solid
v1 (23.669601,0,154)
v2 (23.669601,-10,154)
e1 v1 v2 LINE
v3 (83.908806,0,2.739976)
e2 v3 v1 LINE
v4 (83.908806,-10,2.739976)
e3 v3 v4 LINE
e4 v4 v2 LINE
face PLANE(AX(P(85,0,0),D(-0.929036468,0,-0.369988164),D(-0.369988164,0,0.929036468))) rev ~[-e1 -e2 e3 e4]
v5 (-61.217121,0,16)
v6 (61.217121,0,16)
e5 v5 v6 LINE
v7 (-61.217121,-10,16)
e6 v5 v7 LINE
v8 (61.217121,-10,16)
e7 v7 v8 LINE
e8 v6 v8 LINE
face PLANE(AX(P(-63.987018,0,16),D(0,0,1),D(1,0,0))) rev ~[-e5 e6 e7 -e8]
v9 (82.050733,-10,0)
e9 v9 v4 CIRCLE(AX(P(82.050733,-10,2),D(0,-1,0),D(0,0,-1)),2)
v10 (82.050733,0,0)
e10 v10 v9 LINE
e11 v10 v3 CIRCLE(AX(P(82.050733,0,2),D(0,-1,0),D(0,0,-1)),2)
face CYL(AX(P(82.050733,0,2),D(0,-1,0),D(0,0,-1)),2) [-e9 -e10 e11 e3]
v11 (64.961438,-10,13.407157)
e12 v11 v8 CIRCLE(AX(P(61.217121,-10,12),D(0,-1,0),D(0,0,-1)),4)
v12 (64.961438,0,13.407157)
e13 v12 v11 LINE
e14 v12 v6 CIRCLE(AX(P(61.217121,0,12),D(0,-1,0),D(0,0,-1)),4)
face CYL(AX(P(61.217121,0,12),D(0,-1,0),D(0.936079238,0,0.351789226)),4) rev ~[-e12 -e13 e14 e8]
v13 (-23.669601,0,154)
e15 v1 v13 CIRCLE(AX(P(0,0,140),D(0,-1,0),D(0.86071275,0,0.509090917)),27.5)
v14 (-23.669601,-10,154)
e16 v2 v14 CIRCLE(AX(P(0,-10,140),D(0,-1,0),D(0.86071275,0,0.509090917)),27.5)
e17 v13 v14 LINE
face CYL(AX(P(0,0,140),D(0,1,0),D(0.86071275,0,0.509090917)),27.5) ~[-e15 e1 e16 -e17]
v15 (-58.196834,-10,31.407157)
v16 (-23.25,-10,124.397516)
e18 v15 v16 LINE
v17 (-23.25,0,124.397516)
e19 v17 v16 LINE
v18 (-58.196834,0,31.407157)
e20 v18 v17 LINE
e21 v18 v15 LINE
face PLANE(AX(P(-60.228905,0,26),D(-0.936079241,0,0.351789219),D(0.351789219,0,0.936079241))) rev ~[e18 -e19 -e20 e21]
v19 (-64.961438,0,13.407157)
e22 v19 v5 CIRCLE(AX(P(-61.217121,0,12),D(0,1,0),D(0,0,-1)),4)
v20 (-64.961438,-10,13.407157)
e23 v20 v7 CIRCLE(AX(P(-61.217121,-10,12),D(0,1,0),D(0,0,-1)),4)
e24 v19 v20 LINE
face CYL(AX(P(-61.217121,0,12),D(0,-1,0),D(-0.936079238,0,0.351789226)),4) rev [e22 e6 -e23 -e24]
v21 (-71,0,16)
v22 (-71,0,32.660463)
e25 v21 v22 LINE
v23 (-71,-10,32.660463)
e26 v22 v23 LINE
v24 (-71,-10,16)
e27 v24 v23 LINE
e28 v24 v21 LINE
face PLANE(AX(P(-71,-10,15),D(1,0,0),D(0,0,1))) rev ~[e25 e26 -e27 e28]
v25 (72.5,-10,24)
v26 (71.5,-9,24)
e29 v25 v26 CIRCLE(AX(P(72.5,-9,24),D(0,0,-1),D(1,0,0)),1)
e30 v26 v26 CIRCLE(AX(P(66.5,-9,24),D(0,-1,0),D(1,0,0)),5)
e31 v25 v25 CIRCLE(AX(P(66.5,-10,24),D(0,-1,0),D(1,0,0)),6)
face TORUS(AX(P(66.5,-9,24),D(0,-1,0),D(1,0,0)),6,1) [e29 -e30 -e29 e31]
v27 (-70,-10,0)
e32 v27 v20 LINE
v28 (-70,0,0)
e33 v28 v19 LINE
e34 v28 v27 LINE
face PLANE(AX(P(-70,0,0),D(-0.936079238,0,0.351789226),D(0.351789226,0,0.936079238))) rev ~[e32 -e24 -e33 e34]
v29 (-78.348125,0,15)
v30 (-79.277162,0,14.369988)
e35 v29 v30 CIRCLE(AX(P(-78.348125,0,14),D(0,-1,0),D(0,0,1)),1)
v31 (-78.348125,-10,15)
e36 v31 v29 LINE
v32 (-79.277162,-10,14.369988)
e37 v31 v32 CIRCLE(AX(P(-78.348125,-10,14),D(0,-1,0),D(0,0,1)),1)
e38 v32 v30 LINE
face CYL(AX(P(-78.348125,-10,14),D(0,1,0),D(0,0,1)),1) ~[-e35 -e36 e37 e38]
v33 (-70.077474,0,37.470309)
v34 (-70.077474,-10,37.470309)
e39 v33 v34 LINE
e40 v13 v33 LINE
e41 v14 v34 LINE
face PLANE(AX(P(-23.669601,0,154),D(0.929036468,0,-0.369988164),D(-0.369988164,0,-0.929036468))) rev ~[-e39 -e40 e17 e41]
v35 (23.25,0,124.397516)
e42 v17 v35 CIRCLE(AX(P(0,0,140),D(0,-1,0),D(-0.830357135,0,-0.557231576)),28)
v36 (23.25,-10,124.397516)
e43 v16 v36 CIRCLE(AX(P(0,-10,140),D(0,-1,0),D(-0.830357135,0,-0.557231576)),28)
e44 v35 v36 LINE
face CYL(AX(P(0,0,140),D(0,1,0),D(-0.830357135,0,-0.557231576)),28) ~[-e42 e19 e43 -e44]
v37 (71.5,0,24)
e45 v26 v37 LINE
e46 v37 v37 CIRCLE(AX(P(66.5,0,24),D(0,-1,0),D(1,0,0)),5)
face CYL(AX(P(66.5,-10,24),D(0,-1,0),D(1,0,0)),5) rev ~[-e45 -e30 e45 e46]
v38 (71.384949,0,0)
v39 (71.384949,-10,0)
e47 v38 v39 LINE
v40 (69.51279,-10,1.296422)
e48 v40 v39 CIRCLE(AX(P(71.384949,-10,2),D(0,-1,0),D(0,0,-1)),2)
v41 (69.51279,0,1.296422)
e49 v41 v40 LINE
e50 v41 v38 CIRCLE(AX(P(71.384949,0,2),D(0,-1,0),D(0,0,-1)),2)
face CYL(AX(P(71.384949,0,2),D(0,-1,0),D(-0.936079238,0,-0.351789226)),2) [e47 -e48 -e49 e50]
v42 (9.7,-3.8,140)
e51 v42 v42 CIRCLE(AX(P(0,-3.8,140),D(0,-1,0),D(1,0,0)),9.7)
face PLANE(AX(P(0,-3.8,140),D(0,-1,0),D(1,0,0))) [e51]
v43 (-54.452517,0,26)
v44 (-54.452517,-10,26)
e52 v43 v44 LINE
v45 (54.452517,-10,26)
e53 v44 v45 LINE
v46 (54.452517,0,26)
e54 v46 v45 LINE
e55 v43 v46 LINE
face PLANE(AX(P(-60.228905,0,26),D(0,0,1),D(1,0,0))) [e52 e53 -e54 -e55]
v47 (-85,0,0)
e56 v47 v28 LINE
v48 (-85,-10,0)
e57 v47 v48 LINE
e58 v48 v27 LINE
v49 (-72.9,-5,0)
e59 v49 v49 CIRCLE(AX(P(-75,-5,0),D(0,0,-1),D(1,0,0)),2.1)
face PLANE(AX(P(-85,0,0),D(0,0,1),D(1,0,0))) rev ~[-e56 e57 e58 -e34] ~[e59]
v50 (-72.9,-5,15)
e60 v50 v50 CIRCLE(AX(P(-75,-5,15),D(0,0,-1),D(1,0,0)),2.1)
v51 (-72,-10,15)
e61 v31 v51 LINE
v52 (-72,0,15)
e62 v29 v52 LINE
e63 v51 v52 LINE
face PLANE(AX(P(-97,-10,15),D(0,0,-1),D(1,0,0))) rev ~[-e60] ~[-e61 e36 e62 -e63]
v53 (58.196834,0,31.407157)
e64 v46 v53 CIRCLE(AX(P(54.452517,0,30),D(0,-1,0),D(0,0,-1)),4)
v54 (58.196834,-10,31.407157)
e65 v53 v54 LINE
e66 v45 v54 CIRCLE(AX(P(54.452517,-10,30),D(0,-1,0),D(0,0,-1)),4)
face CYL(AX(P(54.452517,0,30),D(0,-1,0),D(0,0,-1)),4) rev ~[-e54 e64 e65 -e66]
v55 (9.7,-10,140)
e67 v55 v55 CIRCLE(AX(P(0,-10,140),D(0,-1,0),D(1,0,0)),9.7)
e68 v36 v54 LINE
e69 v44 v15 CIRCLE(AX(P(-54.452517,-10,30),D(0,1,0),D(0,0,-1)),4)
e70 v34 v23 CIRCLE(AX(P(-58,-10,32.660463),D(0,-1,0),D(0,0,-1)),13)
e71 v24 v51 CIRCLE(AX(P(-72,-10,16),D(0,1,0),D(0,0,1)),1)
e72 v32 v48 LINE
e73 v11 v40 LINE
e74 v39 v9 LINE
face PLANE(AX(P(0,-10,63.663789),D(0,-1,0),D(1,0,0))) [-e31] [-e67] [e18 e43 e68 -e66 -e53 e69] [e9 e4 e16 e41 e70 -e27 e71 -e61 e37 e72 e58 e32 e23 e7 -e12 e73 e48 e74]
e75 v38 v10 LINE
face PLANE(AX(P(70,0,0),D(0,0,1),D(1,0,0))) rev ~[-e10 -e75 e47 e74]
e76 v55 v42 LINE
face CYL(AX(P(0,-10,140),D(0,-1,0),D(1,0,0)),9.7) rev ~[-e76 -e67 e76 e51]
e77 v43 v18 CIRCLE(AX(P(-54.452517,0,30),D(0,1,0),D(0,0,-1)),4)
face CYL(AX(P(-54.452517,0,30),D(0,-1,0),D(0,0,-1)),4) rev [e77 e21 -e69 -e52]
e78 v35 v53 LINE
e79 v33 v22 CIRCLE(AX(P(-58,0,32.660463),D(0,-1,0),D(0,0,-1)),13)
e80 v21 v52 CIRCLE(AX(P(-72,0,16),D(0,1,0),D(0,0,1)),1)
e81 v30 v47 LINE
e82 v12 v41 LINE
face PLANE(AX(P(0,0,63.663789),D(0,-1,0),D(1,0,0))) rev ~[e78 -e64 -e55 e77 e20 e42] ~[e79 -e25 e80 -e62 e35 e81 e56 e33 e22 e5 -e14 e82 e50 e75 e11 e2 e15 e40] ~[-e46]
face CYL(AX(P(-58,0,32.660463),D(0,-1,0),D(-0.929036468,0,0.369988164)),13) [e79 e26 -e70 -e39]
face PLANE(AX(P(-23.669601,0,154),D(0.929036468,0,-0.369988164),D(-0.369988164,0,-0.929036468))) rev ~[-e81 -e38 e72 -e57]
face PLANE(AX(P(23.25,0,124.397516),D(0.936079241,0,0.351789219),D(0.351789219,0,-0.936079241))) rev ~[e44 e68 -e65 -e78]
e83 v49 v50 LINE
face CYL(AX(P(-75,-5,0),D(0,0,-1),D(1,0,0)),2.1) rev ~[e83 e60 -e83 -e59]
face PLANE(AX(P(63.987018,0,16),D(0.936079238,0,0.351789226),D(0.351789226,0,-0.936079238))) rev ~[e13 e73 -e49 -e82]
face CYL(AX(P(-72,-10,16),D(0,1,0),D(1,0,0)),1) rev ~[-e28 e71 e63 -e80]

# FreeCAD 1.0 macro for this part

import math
import FreeCAD as App
import Part
import Sketcher
from FreeCAD import Vector


def edges_at(feature, points):
    """Names of the edges that pass closest to the given points."""
    edges = feature.Shape.Edges
    near = lambda p: min(range(len(edges)), key=lambda i: edges[i].distToShape(Part.Vertex(*p))[0])
    return sorted({f"Edge{near(p) + 1}" for p in points})

doc = App.newDocument("Part")
params = doc.addObject("Spreadsheet::Sheet", "Params")
for row, (alias, value) in enumerate([
    ("sketch1_radius", "28 mm"),
    ("sketch1_radius2", "27.5 mm"),
    ("sketch1_width", "15 mm"),
    ("pad1_length", "10 mm"),
    ("fillet_radius", "4 mm"),
    ("sketch2_diameter", "19.4 mm"),
    ("pocket1_length", "6.2 mm"),
    ("sketch3_diameter", "4.2 mm"),
    ("sketch4_width", "26 mm"),
    ("sketch4_height", "25 mm"),
    ("sketch5_diameter", "10 mm"),
    ("fillet2_radius", "2 mm"),
    ("fillet3_radius", "1 mm"),
    ("fillet4_radius", "13 mm"),
    ("fillet5_radius", "1 mm"),
], start=1):
    params.set(f"A{row}", alias)
    params.set(f"B{row}", "=" + value)
    params.setAlias(f"B{row}", alias)

body = doc.addObject("PartDesign::Body", "Body")

sketch1 = body.newObject("Sketcher::SketchObject", "Sketch")
sketch1.AttachmentSupport = (doc.getObject("XZ_Plane"), [""])
sketch1.MapMode = "FlatFace"
sketch1.addGeometry([
    Part.ArcOfCircle(Part.Circle(Vector(0, 140, 0), Vector(0, 0, 1), 28), math.radians(31), math.radians(149)),
    Part.LineSegment(Vector(-24, 154, 0), Vector(-85, 0, 0)),
    Part.LineSegment(Vector(-85, 0, 0), Vector(-70, 0, 0)),
    Part.LineSegment(Vector(-70, 0, 0), Vector(-64, 16, 0)),
    Part.LineSegment(Vector(-64, 16, 0), Vector(64, 16, 0)),
    Part.LineSegment(Vector(64, 16, 0), Vector(70, 0, 0)),
    Part.LineSegment(Vector(70, 0, 0), Vector(85, 0, 0)),
    Part.LineSegment(Vector(85, 0, 0), Vector(24, 154, 0)),
    Part.LineSegment(Vector(60, 26, 0), Vector(-60, 26, 0)),
    Part.LineSegment(Vector(-60, 26, 0), Vector(-23, 124, 0)),
    Part.ArcOfCircle(Part.Circle(Vector(0, 140, 0), Vector(0, 0, 1), 28), math.radians(-146), math.radians(-34)),
    Part.LineSegment(Vector(23, 124, 0), Vector(60, 26, 0)),
], False)
sketch1.addConstraint([
    Sketcher.Constraint("Coincident", 0, 2, 1, 1),
    Sketcher.Constraint("Coincident", 1, 2, 2, 1),
    Sketcher.Constraint("Coincident", 2, 2, 3, 1),
    Sketcher.Constraint("Coincident", 3, 2, 4, 1),
    Sketcher.Constraint("Coincident", 4, 2, 5, 1),
    Sketcher.Constraint("Coincident", 5, 2, 6, 1),
    Sketcher.Constraint("Coincident", 6, 2, 7, 1),
    Sketcher.Constraint("Coincident", 7, 2, 0, 1),
    Sketcher.Constraint("Coincident", 8, 2, 9, 1),
    Sketcher.Constraint("Coincident", 9, 2, 10, 1),
    Sketcher.Constraint("Coincident", 10, 2, 11, 1),
    Sketcher.Constraint("Coincident", 11, 2, 8, 1),
    Sketcher.Constraint("Horizontal", 2),
    Sketcher.Constraint("Horizontal", 4),
    Sketcher.Constraint("Horizontal", 6),
    Sketcher.Constraint("Horizontal", 8),
    Sketcher.Constraint("Coincident", 10, 3, 0, 3),
    Sketcher.Constraint("Symmetric", 2, 2, 5, 2, -1, 1),
    Sketcher.Constraint("Symmetric", 1, 2, 6, 2, -2),
    Sketcher.Constraint("Symmetric", 0, 2, 7, 2, -2),
    Sketcher.Constraint("Parallel", 3, 9),
    Sketcher.Constraint("Parallel", 5, 11),
    Sketcher.Constraint("Horizontal", 9, 2, 10, 2),
    Sketcher.Constraint("Equal", 3, 5),
    Sketcher.Constraint("Radius", 10, 28.0),
    Sketcher.Constraint("Radius", 0, 27.5),
    Sketcher.Constraint("DistanceX", 2, 1, 2, 2, 15.0),
    Sketcher.Constraint("DistanceY", -1, 1, 0, 3, 140.0),
    Sketcher.Constraint("DistanceY", -1, 1, 0, 2, 154.0),
    Sketcher.Constraint("DistanceX", 1, 2, -1, 1, 85.0),
    Sketcher.Constraint("DistanceY", -1, 1, 3, 2, 16.0),
    Sketcher.Constraint("DistanceY", -1, 1, 8, 2, 26.0),
    Sketcher.Constraint("DistanceX", 9, 2, 10, 2, 46.5),
    Sketcher.Constraint("DistanceX", 8, 2, 8, 1, 120.45781),
])
sketch1.setExpression("Constraints[24]", "Params.sketch1_radius")
sketch1.setExpression("Constraints[25]", "Params.sketch1_radius2")
sketch1.setExpression("Constraints[26]", "Params.sketch1_width")
pad1 = body.newObject("PartDesign::Pad", "Pad")
pad1.Profile = sketch1
pad1.setExpression("Length", "Params.pad1_length")
doc.recompute()

fillet = body.newObject("PartDesign::Fillet", "Fillet")
fillet.Base = (pad1, edges_at(pad1, [
    (-63.987, -5, 16),
    (-60.229, -5, 26),
    (60.229, -5, 26),
    (63.987, -5, 16),
]))
fillet.setExpression("Radius", "Params.fillet_radius")

sketch2 = body.newObject("Sketcher::SketchObject", "Sketch001")
sketch2.AttachmentSupport = (doc.getObject("XZ_Plane"), [""])
sketch2.MapMode = "FlatFace"
sketch2.AttachmentOffset = App.Placement(Vector(0, 0, 10), App.Rotation())
sketch2.addGeometry(Part.Circle(Vector(0, 140, 0), Vector(0, 0, 1), 10), False)
sketch2.addConstraint([
    Sketcher.Constraint("PointOnObject", 0, 3, -2),
    Sketcher.Constraint("Diameter", 0, 19.4),
    Sketcher.Constraint("DistanceY", -1, 1, 0, 3, 140.0),
])
sketch2.setExpression("Constraints[1]", "Params.sketch2_diameter")
pocket1 = body.newObject("PartDesign::Pocket", "Pocket")
pocket1.Profile = sketch2
pocket1.setExpression("Length", "Params.pocket1_length")

sketch3 = body.newObject("Sketcher::SketchObject", "Sketch002")
sketch3.AttachmentSupport = (doc.getObject("XY_Plane"), [""])
sketch3.MapMode = "FlatFace"
sketch3.addGeometry(Part.Circle(Vector(-75, -5, 0), Vector(0, 0, 1), 2.1), False)
sketch3.addConstraint([
    Sketcher.Constraint("Diameter", 0, 4.2),
    Sketcher.Constraint("DistanceX", 0, 3, -1, 1, 75.0),
    Sketcher.Constraint("DistanceY", 0, 3, -1, 1, 5.0),
])
sketch3.setExpression("Constraints[0]", "Params.sketch3_diameter")
pocket2 = body.newObject("PartDesign::Pocket", "Pocket001")
pocket2.Profile = sketch3
pocket2.Type = "ThroughAll"
pocket2.Reversed = True

sketch4 = body.newObject("Sketcher::SketchObject", "Sketch003")
sketch4.AttachmentSupport = (doc.getObject("XZ_Plane"), [""])
sketch4.MapMode = "FlatFace"
sketch4.AttachmentOffset = App.Placement(Vector(0, 0, 10), App.Rotation())
sketch4.addGeometry([
    Part.LineSegment(Vector(-97, 40, 0), Vector(-97, 15, 0)),
    Part.LineSegment(Vector(-97, 15, 0), Vector(-71, 15, 0)),
    Part.LineSegment(Vector(-71, 15, 0), Vector(-71, 40, 0)),
    Part.LineSegment(Vector(-71, 40, 0), Vector(-97, 40, 0)),
], False)
sketch4.addConstraint([
    Sketcher.Constraint("Coincident", 0, 2, 1, 1),
    Sketcher.Constraint("Coincident", 1, 2, 2, 1),
    Sketcher.Constraint("Coincident", 2, 2, 3, 1),
    Sketcher.Constraint("Coincident", 3, 2, 0, 1),
    Sketcher.Constraint("Vertical", 0),
    Sketcher.Constraint("Horizontal", 1),
    Sketcher.Constraint("Vertical", 2),
    Sketcher.Constraint("Horizontal", 3),
    Sketcher.Constraint("DistanceX", 1, 1, 1, 2, 26.0),
    Sketcher.Constraint("DistanceY", 0, 2, 0, 1, 25.0),
    Sketcher.Constraint("DistanceX", 0, 2, -1, 1, 97.0),
    Sketcher.Constraint("DistanceY", -1, 1, 0, 2, 15.0),
])
sketch4.setExpression("Constraints[8]", "Params.sketch4_width")
sketch4.setExpression("Constraints[9]", "Params.sketch4_height")
pocket3 = body.newObject("PartDesign::Pocket", "Pocket002")
pocket3.Profile = sketch4
pocket3.Type = "ThroughAll"

sketch5 = body.newObject("Sketcher::SketchObject", "Sketch004")
sketch5.AttachmentSupport = (doc.getObject("XZ_Plane"), [""])
sketch5.MapMode = "FlatFace"
sketch5.AttachmentOffset = App.Placement(Vector(0, 0, 10), App.Rotation())
sketch5.addGeometry(Part.Circle(Vector(66, 24, 0), Vector(0, 0, 1), 5), False)
sketch5.addConstraint([
    Sketcher.Constraint("Diameter", 0, 10.0),
    Sketcher.Constraint("DistanceY", -1, 1, 0, 3, 24.0),
    Sketcher.Constraint("DistanceX", -1, 1, 0, 3, 66.5),
])
sketch5.setExpression("Constraints[0]", "Params.sketch5_diameter")
pocket4 = body.newObject("PartDesign::Pocket", "Pocket003")
pocket4.Profile = sketch5
pocket4.Type = "ThroughAll"
doc.recompute()

fillet2 = body.newObject("PartDesign::Fillet", "Fillet001")
fillet2.Base = (pocket4, edges_at(pocket4, [(85, -5, 0), (70, -5, 0)]))
fillet2.setExpression("Radius", "Params.fillet2_radius")
doc.recompute()

fillet3 = body.newObject("PartDesign::Fillet", "Fillet002")
fillet3.Base = (fillet2, edges_at(fillet2, [(61.5, -10, 24)]))
fillet3.setExpression("Radius", "Params.fillet3_radius")
doc.recompute()

fillet4 = body.newObject("PartDesign::Fillet", "Fillet003")
fillet4.Base = (fillet3, edges_at(fillet3, [(-71, -5, 35.154)]))
fillet4.setExpression("Radius", "Params.fillet4_radius")
doc.recompute()

fillet5 = body.newObject("PartDesign::Fillet", "Fillet004")
fillet5.Base = (fillet4, edges_at(fillet4, [(-79.026, -5, 15), (-71, -5, 15)]))
fillet5.setExpression("Radius", "Params.fillet5_radius")

doc.recompute()
